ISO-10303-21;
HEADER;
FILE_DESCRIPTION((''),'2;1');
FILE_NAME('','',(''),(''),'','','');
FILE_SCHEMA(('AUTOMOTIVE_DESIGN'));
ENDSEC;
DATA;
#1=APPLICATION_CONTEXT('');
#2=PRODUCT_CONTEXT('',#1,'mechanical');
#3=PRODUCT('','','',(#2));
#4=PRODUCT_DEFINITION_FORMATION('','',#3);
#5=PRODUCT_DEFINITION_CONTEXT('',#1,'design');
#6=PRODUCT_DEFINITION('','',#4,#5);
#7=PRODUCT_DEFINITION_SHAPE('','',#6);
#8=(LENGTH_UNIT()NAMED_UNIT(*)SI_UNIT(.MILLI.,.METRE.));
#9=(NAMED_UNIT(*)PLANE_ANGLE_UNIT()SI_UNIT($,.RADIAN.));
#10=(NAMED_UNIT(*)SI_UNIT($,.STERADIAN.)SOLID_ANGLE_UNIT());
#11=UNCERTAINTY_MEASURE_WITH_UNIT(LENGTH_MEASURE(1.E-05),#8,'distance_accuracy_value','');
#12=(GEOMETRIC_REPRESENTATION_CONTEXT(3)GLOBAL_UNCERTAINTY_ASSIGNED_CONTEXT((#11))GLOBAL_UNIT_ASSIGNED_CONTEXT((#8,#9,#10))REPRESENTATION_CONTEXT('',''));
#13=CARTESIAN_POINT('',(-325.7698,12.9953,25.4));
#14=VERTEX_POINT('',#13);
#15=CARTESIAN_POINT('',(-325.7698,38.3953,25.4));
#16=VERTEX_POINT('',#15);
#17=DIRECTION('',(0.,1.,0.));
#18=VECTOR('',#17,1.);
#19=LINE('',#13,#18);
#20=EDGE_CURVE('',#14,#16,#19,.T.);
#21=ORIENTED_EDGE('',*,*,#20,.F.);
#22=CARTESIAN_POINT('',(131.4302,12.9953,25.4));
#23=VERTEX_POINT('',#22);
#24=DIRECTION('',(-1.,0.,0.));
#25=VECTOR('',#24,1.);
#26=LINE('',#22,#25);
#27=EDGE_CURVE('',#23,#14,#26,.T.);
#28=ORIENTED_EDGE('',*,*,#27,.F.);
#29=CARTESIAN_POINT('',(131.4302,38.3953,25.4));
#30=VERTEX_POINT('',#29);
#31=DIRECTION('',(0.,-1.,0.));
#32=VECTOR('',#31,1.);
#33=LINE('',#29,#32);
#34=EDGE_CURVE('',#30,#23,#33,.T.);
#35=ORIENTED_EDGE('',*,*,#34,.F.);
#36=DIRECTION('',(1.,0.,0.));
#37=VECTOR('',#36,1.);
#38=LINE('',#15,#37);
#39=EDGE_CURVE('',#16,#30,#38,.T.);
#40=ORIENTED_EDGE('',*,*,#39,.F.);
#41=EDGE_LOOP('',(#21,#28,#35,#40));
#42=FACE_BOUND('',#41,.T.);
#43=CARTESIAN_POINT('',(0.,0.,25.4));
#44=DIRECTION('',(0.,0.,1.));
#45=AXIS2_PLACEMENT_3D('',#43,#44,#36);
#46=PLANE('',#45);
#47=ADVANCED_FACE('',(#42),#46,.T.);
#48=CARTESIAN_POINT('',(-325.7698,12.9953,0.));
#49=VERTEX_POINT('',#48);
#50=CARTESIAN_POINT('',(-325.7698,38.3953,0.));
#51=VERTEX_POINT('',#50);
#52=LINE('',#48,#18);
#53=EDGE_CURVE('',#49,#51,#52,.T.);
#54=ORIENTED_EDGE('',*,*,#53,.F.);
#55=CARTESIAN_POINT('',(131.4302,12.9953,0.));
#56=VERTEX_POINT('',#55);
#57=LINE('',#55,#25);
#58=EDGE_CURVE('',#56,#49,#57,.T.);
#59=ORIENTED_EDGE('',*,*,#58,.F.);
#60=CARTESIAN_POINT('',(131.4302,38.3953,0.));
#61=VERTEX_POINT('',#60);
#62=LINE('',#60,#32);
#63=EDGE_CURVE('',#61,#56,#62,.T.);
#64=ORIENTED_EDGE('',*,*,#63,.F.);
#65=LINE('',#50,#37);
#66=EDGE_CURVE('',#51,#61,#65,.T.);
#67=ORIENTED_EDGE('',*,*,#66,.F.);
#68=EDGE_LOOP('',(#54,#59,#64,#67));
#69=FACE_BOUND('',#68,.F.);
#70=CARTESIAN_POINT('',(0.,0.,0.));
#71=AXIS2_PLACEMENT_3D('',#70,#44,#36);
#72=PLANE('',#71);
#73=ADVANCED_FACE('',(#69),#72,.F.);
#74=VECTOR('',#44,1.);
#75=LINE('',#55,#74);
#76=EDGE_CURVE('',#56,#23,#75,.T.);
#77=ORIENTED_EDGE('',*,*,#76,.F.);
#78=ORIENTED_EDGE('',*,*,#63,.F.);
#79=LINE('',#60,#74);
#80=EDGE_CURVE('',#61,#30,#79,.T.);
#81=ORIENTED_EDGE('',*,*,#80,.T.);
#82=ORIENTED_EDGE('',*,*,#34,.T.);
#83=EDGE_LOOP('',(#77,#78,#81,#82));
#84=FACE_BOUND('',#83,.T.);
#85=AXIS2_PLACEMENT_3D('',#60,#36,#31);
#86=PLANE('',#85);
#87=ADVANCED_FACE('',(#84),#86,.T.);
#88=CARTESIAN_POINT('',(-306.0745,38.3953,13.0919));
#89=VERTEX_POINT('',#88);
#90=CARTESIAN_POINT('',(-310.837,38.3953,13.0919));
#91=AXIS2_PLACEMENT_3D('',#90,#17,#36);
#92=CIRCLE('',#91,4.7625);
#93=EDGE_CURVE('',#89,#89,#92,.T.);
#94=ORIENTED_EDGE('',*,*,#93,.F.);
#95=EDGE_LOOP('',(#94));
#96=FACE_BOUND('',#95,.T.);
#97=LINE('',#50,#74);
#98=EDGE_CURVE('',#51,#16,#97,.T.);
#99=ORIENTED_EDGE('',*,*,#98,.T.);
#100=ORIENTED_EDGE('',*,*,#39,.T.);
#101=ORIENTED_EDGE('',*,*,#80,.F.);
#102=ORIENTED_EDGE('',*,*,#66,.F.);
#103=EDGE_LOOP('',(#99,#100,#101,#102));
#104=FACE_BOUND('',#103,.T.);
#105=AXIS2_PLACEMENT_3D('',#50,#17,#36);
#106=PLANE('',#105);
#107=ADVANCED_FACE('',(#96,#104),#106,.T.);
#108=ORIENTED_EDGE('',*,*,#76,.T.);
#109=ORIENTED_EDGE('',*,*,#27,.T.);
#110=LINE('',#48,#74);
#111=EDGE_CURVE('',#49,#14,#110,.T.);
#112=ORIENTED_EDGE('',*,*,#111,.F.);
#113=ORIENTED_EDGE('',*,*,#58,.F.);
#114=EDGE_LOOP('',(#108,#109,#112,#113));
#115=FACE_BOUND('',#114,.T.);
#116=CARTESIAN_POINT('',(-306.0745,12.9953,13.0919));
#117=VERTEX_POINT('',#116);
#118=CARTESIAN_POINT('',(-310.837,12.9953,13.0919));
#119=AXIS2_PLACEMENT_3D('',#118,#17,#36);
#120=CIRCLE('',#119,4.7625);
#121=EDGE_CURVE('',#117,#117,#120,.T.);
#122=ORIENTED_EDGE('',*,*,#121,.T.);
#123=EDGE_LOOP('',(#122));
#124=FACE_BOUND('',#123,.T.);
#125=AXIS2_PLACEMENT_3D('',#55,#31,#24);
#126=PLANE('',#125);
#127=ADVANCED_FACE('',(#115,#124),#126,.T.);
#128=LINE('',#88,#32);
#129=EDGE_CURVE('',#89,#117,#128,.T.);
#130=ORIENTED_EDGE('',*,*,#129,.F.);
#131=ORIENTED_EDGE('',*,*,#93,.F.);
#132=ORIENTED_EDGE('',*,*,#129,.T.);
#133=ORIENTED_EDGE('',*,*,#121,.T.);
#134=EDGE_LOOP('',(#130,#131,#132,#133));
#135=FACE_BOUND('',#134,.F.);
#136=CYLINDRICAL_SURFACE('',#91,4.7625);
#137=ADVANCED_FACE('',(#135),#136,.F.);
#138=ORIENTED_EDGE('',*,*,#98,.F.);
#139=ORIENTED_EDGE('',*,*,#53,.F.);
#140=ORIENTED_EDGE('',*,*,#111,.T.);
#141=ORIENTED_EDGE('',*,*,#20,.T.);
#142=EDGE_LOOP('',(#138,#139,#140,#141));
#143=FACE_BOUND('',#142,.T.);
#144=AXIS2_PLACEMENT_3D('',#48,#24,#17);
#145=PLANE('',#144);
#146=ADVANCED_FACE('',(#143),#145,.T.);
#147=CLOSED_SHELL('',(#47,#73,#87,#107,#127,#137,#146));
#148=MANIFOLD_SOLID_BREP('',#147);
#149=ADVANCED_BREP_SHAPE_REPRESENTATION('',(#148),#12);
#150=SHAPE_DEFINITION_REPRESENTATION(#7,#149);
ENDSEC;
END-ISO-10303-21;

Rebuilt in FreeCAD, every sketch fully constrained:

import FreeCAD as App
import Part
import Sketcher

V = App.Vector
Q = App.Units.Quantity

doc = App.newDocument("Part")
body = doc.addObject("PartDesign::Body", "Body")

sketch1 = body.newObject("Sketcher::SketchObject", "Sketch")
sketch1.AttachmentSupport = (doc.getObject("XY_Plane"), [""])
sketch1.MapMode = "FlatFace"
sketch1.addGeometry([
    Part.LineSegment(V(131.4302, 38.3953, 0), V(-325.7698, 38.3953, 0)),
    Part.LineSegment(V(-325.7698, 38.3953, 0), V(-325.7698, 12.9953, 0)),
    Part.LineSegment(V(-325.7698, 12.9953, 0), V(131.4302, 12.9953, 0)),
    Part.LineSegment(V(131.4302, 12.9953, 0), V(131.4302, 38.3953, 0)),
], False)
sketch1.addConstraint([
    Sketcher.Constraint("Coincident", 0, 2, 1, 1),
    Sketcher.Constraint("Coincident", 1, 2, 2, 1),
    Sketcher.Constraint("Coincident", 2, 2, 3, 1),
    Sketcher.Constraint("Coincident", 3, 2, 0, 1),
    Sketcher.Constraint("Horizontal", 0),
    Sketcher.Constraint("Vertical", 1),
    Sketcher.Constraint("Horizontal", 2),
    Sketcher.Constraint("Vertical", 3),
    Sketcher.Constraint("DistanceX", 0, 2, 0, 1, Q("18 in")),
    Sketcher.Constraint("DistanceY", 1, 2, 1, 1, Q("1 in")),
    Sketcher.Constraint("DistanceX", 0, 2, -1, 1, Q("325.7698 mm")),
    Sketcher.Constraint("DistanceY", -1, 1, 0, 2, Q("38.3953 mm")),
])
pad1 = body.newObject("PartDesign::Pad", "Pad")
pad1.Profile = sketch1
pad1.Length = Q("1 in")

sketch2 = body.newObject("Sketcher::SketchObject", "Sketch001")
sketch2.AttachmentSupport = (doc.getObject("XZ_Plane"), [""])
sketch2.MapMode = "FlatFace"
sketch2.AttachmentOffset = App.Placement(V(0, 0, -38.3953), App.Rotation())
sketch2.addGeometry(Part.Circle(V(-310.837, 13.0919, 0), V(0, 0, 1), 4.7625), False)
sketch2.addConstraint([
    Sketcher.Constraint("Diameter", 0, Q("0.375 in")),
    Sketcher.Constraint("DistanceX", 0, 3, -1, 1, Q("310.837 mm")),
    Sketcher.Constraint("DistanceY", -1, 1, 0, 3, Q("13.092 mm")),
])
pocket1 = body.newObject("PartDesign::Pocket", "Pocket")
pocket1.Profile = sketch2
pocket1.Type = "ThroughAll"
pocket1.Reversed = True

doc.recompute()
